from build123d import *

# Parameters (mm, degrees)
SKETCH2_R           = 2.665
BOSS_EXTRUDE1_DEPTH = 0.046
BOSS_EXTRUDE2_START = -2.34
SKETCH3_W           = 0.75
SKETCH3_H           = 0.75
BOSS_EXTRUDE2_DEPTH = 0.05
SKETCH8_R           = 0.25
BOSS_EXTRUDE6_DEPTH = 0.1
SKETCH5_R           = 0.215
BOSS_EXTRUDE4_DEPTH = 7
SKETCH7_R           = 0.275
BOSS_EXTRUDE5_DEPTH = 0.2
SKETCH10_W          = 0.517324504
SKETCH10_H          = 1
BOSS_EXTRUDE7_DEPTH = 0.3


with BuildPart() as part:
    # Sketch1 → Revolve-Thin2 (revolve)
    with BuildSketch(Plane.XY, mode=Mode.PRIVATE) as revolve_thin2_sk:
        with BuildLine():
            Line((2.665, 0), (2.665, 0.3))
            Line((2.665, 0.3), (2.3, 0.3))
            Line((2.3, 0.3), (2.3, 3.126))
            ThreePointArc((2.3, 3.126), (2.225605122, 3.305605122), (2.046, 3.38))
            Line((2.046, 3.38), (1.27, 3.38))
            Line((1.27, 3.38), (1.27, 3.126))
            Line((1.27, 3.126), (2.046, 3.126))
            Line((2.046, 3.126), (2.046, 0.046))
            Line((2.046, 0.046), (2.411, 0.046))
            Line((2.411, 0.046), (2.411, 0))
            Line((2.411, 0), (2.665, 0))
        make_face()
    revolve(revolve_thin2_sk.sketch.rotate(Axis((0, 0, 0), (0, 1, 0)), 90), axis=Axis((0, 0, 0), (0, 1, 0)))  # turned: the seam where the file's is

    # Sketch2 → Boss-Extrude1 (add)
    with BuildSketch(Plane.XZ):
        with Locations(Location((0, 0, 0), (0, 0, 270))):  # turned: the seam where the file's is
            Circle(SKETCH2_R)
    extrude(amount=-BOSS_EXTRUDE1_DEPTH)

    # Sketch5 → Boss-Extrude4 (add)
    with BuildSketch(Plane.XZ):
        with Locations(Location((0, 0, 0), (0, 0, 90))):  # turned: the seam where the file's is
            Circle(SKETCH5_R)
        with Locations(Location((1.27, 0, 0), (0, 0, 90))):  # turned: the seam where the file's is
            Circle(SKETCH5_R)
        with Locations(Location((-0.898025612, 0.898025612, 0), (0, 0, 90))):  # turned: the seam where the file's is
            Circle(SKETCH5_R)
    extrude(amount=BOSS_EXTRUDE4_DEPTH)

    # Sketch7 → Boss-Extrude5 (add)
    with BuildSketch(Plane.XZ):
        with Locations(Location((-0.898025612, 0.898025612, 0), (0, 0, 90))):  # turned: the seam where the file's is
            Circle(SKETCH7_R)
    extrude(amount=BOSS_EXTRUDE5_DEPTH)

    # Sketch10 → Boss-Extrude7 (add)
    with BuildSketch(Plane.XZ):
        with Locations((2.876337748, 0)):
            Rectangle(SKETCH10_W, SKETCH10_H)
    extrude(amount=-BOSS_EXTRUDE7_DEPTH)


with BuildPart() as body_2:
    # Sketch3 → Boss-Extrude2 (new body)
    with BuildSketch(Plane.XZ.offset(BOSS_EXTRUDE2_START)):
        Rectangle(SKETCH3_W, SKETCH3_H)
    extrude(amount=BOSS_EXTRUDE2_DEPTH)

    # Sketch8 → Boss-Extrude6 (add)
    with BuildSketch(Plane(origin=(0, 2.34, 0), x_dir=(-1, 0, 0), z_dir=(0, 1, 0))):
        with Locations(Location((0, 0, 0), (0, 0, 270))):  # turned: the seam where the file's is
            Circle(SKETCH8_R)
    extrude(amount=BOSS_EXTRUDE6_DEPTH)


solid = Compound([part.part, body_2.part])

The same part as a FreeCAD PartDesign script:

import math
import FreeCAD as App
import Part
import Sketcher

V = App.Vector


def add_polygon(sketch, points):
    """Adds a closed chain of lines whose ends are joined by coincident constraints."""
    first, n = sketch.GeometryCount, len(points)
    for a, b in zip(points, points[1:] + points[:1]):
        sketch.addGeometry(Part.LineSegment(App.Vector(*a, 0), App.Vector(*b, 0)), False)
    for i in range(n):
        sketch.addConstraint(Sketcher.Constraint("Coincident", first + i, 2, first + (i + 1) % n, 1))

doc = App.newDocument("Part")
body = doc.addObject("PartDesign::Body", "Body")

# Sketch on XY plane
sketch1 = body.newObject("Sketcher::SketchObject", "Sketch")
sketch1.AttachmentSupport = (doc.getObject("XY_Plane"), [""])
sketch1.MapMode = "FlatFace"
sketch1.addGeometry([
    Part.LineSegment(V(2.665, 0, 0), V(2.665, 0.3, 0)),  # 0
    Part.LineSegment(V(2.665, 0.3, 0), V(2.3, 0.3, 0)),  # 1
    Part.LineSegment(V(2.3, 0.3, 0), V(2.3, 3.126, 0)),  # 2
    Part.ArcOfCircle(Part.Circle(V(2.046, 3.126, 0), V(0, 0, 1), 0.254), math.radians(0), math.radians(90)),  # 3
    Part.LineSegment(V(2.046, 3.38, 0), V(1.27, 3.38, 0)),  # 4
    Part.LineSegment(V(1.27, 3.38, 0), V(1.27, 3.126, 0)),  # 5
    Part.LineSegment(V(1.27, 3.126, 0), V(2.046, 3.126, 0)),  # 6
    Part.LineSegment(V(2.046, 3.126, 0), V(2.046, 0.046, 0)),  # 7
    Part.LineSegment(V(2.046, 0.046, 0), V(2.411, 0.046, 0)),  # 8
    Part.LineSegment(V(2.411, 0.046, 0), V(2.411, 0, 0)),  # 9
    Part.LineSegment(V(2.411, 0, 0), V(2.665, 0, 0)),  # 10
], False)
sketch1.addConstraint([
    Sketcher.Constraint("Coincident", 0, 2, 1, 1),
    Sketcher.Constraint("Coincident", 1, 2, 2, 1),
    Sketcher.Constraint("Tangent", 2, 2, 3, 1),
    Sketcher.Constraint("Tangent", 3, 2, 4, 1),
    Sketcher.Constraint("Coincident", 4, 2, 5, 1),
    Sketcher.Constraint("Coincident", 5, 2, 6, 1),
    Sketcher.Constraint("Coincident", 6, 2, 7, 1),
    Sketcher.Constraint("Coincident", 7, 2, 8, 1),
    Sketcher.Constraint("Coincident", 8, 2, 9, 1),
    Sketcher.Constraint("Coincident", 9, 2, 10, 1),
    Sketcher.Constraint("Coincident", 10, 2, 0, 1),
    Sketcher.Constraint("Vertical", 0),
    Sketcher.Constraint("Horizontal", 1),
    Sketcher.Constraint("Vertical", 2),
    Sketcher.Constraint("Horizontal", 4),
    Sketcher.Constraint("Vertical", 5),
    Sketcher.Constraint("Horizontal", 6),
    Sketcher.Constraint("Vertical", 7),
    Sketcher.Constraint("Horizontal", 8),
    Sketcher.Constraint("Vertical", 9),
    Sketcher.Constraint("Horizontal", 10),
    Sketcher.Constraint("Coincident", 6, 2, 3, 3),
    Sketcher.Constraint("PointOnObject", 9, 2, -1),
    Sketcher.Constraint("Equal", 1, 8),
    Sketcher.Constraint("DistanceY", 0, 1, 0, 2, 0.3),
    Sketcher.Constraint("Radius", 3, 0.254),
    Sketcher.Constraint("DistanceY", 7, 2, 7, 1, 3.08),
    Sketcher.Constraint("DistanceX", -1, 1, 1, 2, 2.3),
    Sketcher.Constraint("DistanceX", 1, 2, 1, 1, 0.365),
    Sketcher.Constraint("DistanceX", 4, 2, 4, 1, 0.776),
    Sketcher.Constraint("DistanceY", 2, 1, 2, 2, 2.826),
])
revolution = body.newObject("PartDesign::Revolution", "Revolution")
revolution.Profile = sketch1
revolution.ReferenceAxis = (sketch1, ["V_Axis"])
revolution.Angle = 360

# Sketch on XZ plane
sketch2 = body.newObject("Sketcher::SketchObject", "Sketch001")
sketch2.AttachmentSupport = (doc.getObject("XZ_Plane"), [""])
sketch2.MapMode = "FlatFace"
sketch2.addGeometry(Part.Circle(V(0, 0, 0), V(0, 0, 1), 2.7), False)
sketch2.addConstraint([
    Sketcher.Constraint("Coincident", 0, 3, -1, 1),
    Sketcher.Constraint("Diameter", 0, 5.33),
])
pad1 = body.newObject("PartDesign::Pad", "Pad")
pad1.Profile = sketch2
pad1.Length = 0.046
pad1.Reversed = True

# Sketch on XZ plane
sketch3 = body.newObject("Sketcher::SketchObject", "Sketch002")
sketch3.AttachmentSupport = (doc.getObject("XZ_Plane"), [""])
sketch3.MapMode = "FlatFace"
sketch3.addGeometry([
    Part.Circle(V(0, 0, 0), V(0, 0, 1), 0.21),
    Part.Circle(V(1.27, 0, 0), V(0, 0, 1), 0.21),
    Part.Circle(V(-0.9, 0.9, 0), V(0, 0, 1), 0.21),
], False)
sketch3.addConstraint([
    Sketcher.Constraint("Coincident", 0, 3, -1, 1),
    Sketcher.Constraint("Equal", 0, 1),
    Sketcher.Constraint("Equal", 1, 2),
    Sketcher.Constraint("PointOnObject", 1, 3, -1),
    Sketcher.Constraint("Diameter", 0, 0.43),
    Sketcher.Constraint("DistanceX", -1, 1, 1, 3, 1.27),
    Sketcher.Constraint("DistanceX", 2, 3, -1, 1, 0.898026),
    Sketcher.Constraint("DistanceY", -1, 1, 2, 3, 0.898026),
])
pad2 = body.newObject("PartDesign::Pad", "Pad001")
pad2.Profile = sketch3
pad2.Length = 7

# Sketch on XZ plane
sketch4 = body.newObject("Sketcher::SketchObject", "Sketch003")
sketch4.AttachmentSupport = (doc.getObject("XZ_Plane"), [""])
sketch4.MapMode = "FlatFace"
sketch4.addGeometry(Part.Circle(V(-0.9, 0.9, 0), V(0, 0, 1), 0.28), False)
sketch4.addConstraint([
    Sketcher.Constraint("Diameter", 0, 0.55),
    Sketcher.Constraint("DistanceX", 0, 3, -1, 1, 0.898026),
    Sketcher.Constraint("DistanceY", -1, 1, 0, 3, 0.898026),
])
pad3 = body.newObject("PartDesign::Pad", "Pad002")
pad3.Profile = sketch4
pad3.Length = 0.2

# Sketch on XZ plane
sketch5 = body.newObject("Sketcher::SketchObject", "Sketch004")
sketch5.AttachmentSupport = (doc.getObject("XZ_Plane"), [""])
sketch5.MapMode = "FlatFace"
add_polygon(sketch5, [(2.6, 0.5), (2.6, -0.5), (3.1, -0.5), (3.1, 0.5)])  # lines 0-3
sketch5.addConstraint([
    Sketcher.Constraint("Vertical", 0),
    Sketcher.Constraint("Horizontal", 1),
    Sketcher.Constraint("Vertical", 2),
    Sketcher.Constraint("Horizontal", 3),
    Sketcher.Constraint("DistanceY", 0, 2, 0, 1, 1.0),
    Sketcher.Constraint("DistanceY", 0, 2, -1, 1, 0.5),
    Sketcher.Constraint("DistanceX", -1, 1, 1, 2, 3.135),
    Sketcher.Constraint("DistanceX", 1, 1, 1, 2, 0.517325),
])
pad4 = body.newObject("PartDesign::Pad", "Pad003")
pad4.Profile = sketch5
pad4.Length = 0.3
pad4.Reversed = True
body2 = doc.addObject("PartDesign::Body", "Body001")

# Sketch on XZ plane
sketch6 = body2.newObject("Sketcher::SketchObject", "Sketch005")
sketch6.AttachmentSupport = (doc.getObject("XZ_Plane001"), [""])
sketch6.MapMode = "FlatFace"
sketch6.AttachmentOffset = App.Placement(V(0, 0, -2.34), App.Rotation())
add_polygon(sketch6, [(-0.4, 0.4), (-0.4, -0.4), (0.4, -0.4), (0.4, 0.4)])  # lines 0-3
sketch6.addConstraint([
    Sketcher.Constraint("Vertical", 0),
    Sketcher.Constraint("Horizontal", 1),
    Sketcher.Constraint("Vertical", 2),
    Sketcher.Constraint("Horizontal", 3),
    Sketcher.Constraint("Symmetric", 0, 2, 2, 2, -1, 1),
    Sketcher.Constraint("Equal", 3, 0),
    Sketcher.Constraint("DistanceX", 1, 1, 1, 2, 0.75),
])
pad5 = body2.newObject("PartDesign::Pad", "Pad004")
pad5.Profile = sketch6
pad5.Length = 0.05

# Sketch on XZ plane
sketch7 = body2.newObject("Sketcher::SketchObject", "Sketch006")
sketch7.AttachmentSupport = (doc.getObject("XZ_Plane001"), [""])
sketch7.MapMode = "FlatFace"
sketch7.AttachmentOffset = App.Placement(V(0, 0, -2.34), App.Rotation())
sketch7.addGeometry(Part.Circle(V(0, 0, 0), V(0, 0, 1), 0.25), False)
sketch7.addConstraint([
    Sketcher.Constraint("Coincident", 0, 3, -1, 1),
    Sketcher.Constraint("Diameter", 0, 0.5),
])
pad6 = body2.newObject("PartDesign::Pad", "Pad005")
pad6.Profile = sketch7
pad6.Length = 0.1
pad6.Reversed = True

doc.recompute()
